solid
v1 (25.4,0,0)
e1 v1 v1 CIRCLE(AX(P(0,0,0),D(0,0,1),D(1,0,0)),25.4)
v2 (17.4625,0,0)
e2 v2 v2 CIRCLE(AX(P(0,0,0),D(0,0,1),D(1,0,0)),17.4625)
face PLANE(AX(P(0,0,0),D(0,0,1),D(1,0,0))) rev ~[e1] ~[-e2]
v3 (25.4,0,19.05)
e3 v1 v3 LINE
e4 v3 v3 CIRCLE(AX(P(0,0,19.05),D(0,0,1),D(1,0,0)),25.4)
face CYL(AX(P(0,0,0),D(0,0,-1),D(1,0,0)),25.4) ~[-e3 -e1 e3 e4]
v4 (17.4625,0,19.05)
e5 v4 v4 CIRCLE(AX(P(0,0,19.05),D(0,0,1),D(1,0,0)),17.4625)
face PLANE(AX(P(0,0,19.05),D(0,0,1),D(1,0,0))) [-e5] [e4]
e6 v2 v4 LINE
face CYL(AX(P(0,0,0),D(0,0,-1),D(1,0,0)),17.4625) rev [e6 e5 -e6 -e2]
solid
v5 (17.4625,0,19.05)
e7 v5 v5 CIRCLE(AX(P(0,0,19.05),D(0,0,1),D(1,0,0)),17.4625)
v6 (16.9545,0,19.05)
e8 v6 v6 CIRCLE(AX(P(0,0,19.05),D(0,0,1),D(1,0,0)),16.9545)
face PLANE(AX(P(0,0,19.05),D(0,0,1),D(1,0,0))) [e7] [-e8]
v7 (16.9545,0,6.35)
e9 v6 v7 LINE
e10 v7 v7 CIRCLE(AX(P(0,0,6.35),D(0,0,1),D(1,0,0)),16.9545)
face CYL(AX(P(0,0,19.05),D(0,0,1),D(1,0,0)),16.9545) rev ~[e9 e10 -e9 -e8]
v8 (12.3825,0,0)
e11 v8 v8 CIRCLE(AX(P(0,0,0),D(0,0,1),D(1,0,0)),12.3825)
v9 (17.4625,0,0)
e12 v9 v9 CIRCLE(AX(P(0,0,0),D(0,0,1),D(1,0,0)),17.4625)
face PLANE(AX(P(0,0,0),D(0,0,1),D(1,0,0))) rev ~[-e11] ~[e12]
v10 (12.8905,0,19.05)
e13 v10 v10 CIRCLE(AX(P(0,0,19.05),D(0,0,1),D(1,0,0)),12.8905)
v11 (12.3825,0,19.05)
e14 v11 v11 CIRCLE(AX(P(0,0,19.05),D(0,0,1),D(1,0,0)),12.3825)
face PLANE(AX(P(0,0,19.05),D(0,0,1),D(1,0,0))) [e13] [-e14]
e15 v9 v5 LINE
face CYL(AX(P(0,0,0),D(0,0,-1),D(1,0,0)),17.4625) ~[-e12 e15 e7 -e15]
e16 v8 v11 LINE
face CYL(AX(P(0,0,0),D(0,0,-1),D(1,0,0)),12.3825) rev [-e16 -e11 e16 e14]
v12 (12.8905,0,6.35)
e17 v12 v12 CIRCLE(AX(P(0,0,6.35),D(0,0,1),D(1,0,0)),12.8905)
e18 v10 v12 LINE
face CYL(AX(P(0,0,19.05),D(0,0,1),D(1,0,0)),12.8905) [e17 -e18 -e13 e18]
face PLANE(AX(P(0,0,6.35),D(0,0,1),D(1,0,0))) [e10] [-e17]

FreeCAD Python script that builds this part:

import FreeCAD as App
import Part
import Sketcher

V = App.Vector
Q = App.Units.Quantity

doc = App.newDocument("Part")
body = doc.addObject("PartDesign::Body", "Body")

# Sketch on XY plane
sketch1 = body.newObject("Sketcher::SketchObject", "Sketch")
sketch1.AttachmentSupport = (doc.getObject("XY_Plane"), [""])
sketch1.MapMode = "FlatFace"
sketch1.addGeometry([
    Part.Circle(V(0, 0, 0), V(0, 0, 1), 25),
    Part.Circle(V(0, 0, 0), V(0, 0, 1), 17),
], False)
sketch1.addConstraint([
    Sketcher.Constraint("Coincident", 0, 3, -1, 1),
    Sketcher.Constraint("Coincident", 1, 3, -1, 1),
    Sketcher.Constraint("Diameter", 0, Q("2 in")),
    Sketcher.Constraint("Diameter", 1, Q("1.375 in")),
])
pad1 = body.newObject("PartDesign::Pad", "Pad")
pad1.Profile = sketch1
pad1.Length = Q("0.75 in")
body2 = doc.addObject("PartDesign::Body", "Body001")

# Sketch on XY plane
sketch2 = body2.newObject("Sketcher::SketchObject", "Sketch001")
sketch2.AttachmentSupport = (doc.getObject("XY_Plane001"), [""])
sketch2.MapMode = "FlatFace"
sketch2.addGeometry([
    Part.Circle(V(0, 0, 0), V(0, 0, 1), 17),
    Part.Circle(V(0, 0, 0), V(0, 0, 1), 12),
], False)
sketch2.addConstraint([
    Sketcher.Constraint("Coincident", 0, 3, -1, 1),
    Sketcher.Constraint("Coincident", 1, 3, -1, 1),
    Sketcher.Constraint("Diameter", 0, Q("1.375 in")),
    Sketcher.Constraint("Diameter", 1, Q("0.975 in")),
])
pad2 = body2.newObject("PartDesign::Pad", "Pad001")
pad2.Profile = sketch2
pad2.Length = Q("0.75 in")

# Sketch on XY plane
sketch3 = body2.newObject("Sketcher::SketchObject", "Sketch002")
sketch3.AttachmentSupport = (doc.getObject("XY_Plane001"), [""])
sketch3.MapMode = "FlatFace"
sketch3.AttachmentOffset = App.Placement(V(0, 0, 0.75 * 25.4), App.Rotation())
sketch3.addGeometry([
    Part.Circle(V(0, 0, 0), V(0, 0, 1), 17),
    Part.Circle(V(0, 0, 0), V(0, 0, 1), 13),
], False)
sketch3.addConstraint([
    Sketcher.Constraint("Coincident", 0, 3, -1, 1),
    Sketcher.Constraint("Coincident", 1, 3, -1, 1),
    Sketcher.Constraint("Diameter", 0, Q("1.335 in")),
    Sketcher.Constraint("Diameter", 1, Q("1.015 in")),
])
pocket1 = body2.newObject("PartDesign::Pocket", "Pocket")
pocket1.Profile = sketch3
pocket1.Length = Q("0.5 in")

doc.recompute()
